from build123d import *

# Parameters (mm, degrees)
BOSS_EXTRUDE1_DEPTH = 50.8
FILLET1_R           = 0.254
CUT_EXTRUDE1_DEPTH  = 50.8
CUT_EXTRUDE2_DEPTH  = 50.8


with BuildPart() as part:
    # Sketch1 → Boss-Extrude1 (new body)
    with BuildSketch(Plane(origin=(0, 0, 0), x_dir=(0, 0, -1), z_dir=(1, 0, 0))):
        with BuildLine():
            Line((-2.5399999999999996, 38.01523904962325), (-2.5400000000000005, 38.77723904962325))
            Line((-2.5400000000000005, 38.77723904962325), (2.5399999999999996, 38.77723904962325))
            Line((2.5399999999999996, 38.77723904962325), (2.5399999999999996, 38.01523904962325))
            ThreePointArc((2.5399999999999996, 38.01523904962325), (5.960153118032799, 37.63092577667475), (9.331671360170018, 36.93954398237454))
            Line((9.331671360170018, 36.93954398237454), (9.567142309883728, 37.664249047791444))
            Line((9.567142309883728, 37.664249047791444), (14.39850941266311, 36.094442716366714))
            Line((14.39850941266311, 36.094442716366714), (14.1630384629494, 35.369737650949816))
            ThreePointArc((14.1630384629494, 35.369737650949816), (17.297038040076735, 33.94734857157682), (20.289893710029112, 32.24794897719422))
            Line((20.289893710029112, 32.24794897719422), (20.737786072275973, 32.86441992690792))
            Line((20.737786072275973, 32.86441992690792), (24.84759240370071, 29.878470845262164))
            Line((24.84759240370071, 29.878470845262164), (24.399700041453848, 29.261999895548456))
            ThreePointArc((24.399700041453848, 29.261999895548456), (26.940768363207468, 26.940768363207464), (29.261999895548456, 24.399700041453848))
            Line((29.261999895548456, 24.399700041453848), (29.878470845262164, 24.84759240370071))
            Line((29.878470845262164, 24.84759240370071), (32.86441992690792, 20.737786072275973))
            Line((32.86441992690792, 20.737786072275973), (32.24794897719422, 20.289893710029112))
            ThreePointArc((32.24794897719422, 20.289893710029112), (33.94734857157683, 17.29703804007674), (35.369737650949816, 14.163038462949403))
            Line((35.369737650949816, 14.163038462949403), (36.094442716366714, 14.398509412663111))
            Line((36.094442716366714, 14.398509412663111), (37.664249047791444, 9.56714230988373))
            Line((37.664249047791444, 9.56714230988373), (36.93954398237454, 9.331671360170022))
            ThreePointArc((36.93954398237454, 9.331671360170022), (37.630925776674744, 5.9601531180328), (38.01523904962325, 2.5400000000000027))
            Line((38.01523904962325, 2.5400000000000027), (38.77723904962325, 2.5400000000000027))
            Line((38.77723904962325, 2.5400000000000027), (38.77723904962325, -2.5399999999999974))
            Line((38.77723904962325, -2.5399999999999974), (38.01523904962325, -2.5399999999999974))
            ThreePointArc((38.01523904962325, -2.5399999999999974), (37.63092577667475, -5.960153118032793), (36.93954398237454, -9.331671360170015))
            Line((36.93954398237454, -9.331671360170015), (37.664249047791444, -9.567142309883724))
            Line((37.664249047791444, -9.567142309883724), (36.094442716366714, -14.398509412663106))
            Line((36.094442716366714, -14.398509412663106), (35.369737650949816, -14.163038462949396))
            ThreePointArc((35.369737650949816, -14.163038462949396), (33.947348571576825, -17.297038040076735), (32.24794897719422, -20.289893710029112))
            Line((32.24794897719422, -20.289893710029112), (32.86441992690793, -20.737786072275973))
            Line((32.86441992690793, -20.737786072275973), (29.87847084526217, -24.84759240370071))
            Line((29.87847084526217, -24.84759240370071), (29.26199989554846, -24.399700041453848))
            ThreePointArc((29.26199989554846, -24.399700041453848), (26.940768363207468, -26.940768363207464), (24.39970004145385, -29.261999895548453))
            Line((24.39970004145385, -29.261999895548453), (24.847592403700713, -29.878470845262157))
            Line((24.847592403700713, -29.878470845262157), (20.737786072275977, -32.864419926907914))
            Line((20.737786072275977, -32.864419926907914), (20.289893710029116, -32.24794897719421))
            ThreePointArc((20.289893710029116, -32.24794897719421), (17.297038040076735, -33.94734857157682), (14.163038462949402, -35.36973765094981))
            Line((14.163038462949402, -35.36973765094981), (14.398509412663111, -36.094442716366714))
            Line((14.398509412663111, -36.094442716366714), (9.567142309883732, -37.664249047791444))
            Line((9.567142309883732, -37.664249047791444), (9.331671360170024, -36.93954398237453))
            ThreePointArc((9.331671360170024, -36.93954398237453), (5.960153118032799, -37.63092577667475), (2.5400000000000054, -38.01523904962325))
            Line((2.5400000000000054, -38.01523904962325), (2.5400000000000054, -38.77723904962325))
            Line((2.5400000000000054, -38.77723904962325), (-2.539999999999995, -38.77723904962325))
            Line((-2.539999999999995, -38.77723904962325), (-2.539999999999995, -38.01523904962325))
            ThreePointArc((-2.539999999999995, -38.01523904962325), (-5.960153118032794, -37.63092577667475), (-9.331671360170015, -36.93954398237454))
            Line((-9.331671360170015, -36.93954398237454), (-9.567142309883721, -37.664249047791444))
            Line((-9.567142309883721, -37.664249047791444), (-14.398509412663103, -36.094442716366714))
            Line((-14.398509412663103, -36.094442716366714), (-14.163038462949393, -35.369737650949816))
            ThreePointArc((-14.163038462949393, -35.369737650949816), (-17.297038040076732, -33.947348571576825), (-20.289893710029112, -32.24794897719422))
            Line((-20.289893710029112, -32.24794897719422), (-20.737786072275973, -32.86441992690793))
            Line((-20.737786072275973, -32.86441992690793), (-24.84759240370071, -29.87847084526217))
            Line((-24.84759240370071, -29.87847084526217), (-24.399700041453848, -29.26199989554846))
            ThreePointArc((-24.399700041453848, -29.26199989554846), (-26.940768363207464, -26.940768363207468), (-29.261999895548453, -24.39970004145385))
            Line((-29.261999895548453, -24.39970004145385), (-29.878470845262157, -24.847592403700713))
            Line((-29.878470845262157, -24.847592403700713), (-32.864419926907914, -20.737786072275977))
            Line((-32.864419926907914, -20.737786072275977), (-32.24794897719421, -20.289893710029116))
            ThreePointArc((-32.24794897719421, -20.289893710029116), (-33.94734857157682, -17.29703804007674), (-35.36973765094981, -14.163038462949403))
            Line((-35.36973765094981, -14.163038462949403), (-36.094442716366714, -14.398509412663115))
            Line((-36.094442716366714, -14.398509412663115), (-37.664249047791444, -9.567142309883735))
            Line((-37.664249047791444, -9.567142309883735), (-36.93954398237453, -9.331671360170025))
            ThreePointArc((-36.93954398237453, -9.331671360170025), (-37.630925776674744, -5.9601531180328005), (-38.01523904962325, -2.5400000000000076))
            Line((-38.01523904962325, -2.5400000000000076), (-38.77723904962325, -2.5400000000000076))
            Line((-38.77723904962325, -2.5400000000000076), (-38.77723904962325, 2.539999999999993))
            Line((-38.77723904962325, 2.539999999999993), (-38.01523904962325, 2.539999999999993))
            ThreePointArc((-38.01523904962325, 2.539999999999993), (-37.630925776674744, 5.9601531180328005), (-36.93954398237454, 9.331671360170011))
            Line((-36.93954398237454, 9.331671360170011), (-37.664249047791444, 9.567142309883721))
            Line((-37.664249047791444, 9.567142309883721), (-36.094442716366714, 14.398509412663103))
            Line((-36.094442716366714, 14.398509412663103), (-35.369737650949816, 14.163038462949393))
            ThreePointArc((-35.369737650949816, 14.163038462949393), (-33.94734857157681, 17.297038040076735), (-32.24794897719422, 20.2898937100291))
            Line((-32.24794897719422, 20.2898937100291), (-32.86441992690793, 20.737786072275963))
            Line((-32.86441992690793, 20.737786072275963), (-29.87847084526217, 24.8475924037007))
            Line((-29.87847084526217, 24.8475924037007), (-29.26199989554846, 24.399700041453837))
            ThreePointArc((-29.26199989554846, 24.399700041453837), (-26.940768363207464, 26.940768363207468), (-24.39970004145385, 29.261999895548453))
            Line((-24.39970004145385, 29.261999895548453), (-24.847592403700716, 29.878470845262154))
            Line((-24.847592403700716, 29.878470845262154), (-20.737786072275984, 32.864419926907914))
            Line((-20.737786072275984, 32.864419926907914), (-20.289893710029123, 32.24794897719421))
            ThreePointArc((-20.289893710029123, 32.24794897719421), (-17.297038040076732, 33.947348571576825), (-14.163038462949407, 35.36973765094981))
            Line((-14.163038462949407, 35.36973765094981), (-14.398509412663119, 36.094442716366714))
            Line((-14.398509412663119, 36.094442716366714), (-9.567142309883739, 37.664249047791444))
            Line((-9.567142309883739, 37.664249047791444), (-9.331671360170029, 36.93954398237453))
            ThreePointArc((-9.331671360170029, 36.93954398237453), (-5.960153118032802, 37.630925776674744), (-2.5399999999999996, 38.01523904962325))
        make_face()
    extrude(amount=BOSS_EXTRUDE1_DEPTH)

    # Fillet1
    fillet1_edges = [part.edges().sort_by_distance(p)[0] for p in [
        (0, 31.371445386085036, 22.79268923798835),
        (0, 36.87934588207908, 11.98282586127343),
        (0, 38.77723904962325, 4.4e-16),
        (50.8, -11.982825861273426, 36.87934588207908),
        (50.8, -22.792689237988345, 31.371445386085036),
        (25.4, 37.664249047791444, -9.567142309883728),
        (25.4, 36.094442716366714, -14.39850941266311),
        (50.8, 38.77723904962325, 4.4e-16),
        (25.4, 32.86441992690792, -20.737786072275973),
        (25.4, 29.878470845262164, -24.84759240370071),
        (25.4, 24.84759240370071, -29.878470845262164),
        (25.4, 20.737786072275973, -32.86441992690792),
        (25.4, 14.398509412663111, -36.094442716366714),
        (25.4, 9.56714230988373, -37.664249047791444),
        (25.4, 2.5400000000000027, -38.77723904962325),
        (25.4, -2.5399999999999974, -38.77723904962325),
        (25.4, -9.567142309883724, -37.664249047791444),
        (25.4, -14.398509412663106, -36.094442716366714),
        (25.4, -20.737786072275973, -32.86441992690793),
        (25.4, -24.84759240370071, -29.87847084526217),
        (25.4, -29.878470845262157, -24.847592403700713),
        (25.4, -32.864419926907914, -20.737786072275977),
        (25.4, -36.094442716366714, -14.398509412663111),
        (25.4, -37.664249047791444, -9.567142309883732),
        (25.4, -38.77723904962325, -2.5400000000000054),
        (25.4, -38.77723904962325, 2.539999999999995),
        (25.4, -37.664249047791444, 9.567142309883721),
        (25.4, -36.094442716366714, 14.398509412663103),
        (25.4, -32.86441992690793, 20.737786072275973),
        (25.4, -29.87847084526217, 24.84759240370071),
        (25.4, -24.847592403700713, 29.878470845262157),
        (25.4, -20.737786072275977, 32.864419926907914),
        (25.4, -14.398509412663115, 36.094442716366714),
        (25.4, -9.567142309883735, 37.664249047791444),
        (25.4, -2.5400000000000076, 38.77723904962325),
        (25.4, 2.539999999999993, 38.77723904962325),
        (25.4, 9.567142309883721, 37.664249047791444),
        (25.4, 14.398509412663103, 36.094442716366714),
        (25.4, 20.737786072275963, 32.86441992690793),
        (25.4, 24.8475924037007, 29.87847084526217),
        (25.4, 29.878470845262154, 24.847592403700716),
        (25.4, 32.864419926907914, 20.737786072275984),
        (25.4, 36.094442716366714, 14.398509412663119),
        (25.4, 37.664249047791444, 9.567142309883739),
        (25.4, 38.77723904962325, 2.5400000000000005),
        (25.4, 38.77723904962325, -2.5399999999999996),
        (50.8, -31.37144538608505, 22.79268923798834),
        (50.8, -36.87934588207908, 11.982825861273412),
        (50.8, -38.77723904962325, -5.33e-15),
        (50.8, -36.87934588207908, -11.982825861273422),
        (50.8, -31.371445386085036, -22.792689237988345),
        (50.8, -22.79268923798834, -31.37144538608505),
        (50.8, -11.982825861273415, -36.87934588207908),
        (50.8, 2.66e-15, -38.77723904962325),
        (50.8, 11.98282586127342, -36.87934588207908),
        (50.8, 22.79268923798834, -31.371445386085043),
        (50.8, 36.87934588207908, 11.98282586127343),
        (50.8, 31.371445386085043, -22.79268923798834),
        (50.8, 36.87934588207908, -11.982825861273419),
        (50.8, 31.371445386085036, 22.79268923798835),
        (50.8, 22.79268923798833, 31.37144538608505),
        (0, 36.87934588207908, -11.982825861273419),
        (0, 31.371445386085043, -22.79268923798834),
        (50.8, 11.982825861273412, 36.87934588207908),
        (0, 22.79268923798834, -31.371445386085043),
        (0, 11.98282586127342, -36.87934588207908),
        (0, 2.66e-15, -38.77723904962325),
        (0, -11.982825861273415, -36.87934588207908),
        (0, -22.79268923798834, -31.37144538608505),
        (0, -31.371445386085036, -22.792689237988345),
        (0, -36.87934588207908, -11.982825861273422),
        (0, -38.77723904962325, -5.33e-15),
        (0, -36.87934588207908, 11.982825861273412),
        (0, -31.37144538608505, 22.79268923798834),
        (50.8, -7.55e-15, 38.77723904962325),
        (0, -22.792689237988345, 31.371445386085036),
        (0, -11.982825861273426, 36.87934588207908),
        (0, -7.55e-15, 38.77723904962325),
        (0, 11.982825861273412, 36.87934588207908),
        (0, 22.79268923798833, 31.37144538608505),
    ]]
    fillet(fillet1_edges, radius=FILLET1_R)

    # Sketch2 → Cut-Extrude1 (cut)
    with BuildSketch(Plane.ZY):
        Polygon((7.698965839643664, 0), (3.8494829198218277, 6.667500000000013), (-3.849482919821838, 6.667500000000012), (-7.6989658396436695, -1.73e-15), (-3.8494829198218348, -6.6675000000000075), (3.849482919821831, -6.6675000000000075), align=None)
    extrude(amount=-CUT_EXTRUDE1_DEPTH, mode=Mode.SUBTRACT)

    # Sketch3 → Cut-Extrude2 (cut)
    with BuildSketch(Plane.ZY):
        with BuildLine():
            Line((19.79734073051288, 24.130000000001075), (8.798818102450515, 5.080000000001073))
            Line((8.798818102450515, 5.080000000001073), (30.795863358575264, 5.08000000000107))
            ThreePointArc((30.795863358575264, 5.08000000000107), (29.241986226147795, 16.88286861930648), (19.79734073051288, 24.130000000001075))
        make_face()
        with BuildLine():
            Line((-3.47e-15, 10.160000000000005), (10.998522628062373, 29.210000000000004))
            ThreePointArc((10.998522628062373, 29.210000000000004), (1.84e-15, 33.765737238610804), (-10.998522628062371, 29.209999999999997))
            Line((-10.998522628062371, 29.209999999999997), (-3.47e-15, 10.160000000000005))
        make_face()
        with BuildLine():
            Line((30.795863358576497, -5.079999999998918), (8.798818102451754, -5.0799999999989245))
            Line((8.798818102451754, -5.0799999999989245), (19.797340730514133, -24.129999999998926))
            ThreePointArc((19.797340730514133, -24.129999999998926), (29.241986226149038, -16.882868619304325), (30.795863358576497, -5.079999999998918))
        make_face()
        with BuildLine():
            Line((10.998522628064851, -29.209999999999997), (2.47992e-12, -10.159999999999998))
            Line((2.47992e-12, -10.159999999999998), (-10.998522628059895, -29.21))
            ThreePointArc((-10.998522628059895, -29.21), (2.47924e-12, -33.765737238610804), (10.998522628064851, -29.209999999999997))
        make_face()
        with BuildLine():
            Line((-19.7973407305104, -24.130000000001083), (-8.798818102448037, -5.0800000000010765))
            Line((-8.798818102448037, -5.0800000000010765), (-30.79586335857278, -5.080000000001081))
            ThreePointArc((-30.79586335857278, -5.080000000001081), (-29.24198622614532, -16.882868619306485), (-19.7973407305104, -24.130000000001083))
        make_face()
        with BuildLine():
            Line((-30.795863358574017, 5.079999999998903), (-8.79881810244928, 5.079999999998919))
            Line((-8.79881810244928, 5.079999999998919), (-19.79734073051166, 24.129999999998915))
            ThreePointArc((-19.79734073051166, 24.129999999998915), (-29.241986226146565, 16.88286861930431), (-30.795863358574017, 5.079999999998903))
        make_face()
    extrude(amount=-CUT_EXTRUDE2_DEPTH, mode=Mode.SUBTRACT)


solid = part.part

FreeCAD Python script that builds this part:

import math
import FreeCAD as App
import Part
import Sketcher

V = App.Vector
Q = App.Units.Quantity


def edges_at(feature, points):
    """Names of the edges that pass closest to the given points."""
    edges = feature.Shape.Edges
    near = lambda p: min(range(len(edges)), key=lambda i: edges[i].distToShape(Part.Vertex(*p))[0])
    return sorted({f"Edge{near(p) + 1}" for p in points})

doc = App.newDocument("Part")
params = doc.addObject("Spreadsheet::Sheet", "Params")
for row, (alias, value) in enumerate([
    ("sketch1_radius", "1.5 in"),
    ("sketch1_width", "0.2 in"),
    ("sketch1_length", "0.2 in"),
    ("sketch1_width2", "0.03 in"),
    ("sketch1_length2", "0.03 in"),
    ("pad1_length", "2 in"),
    ("fillet_radius", "0.01 in"),
    ("pocket1_length", "2 in"),
    ("pocket2_length", "2 in"),
], start=1):
    params.set(f"A{row}", alias)
    params.set(f"B{row}", "=" + value)
    params.setAlias(f"B{row}", alias)

body = doc.addObject("PartDesign::Body", "Body")

sketch1 = doc.addObject("Sketcher::SketchObject", "Sketch")
body.addObject(sketch1)
sketch1.AttachmentSupport = (doc.YZ_Plane, [""])
sketch1.MapMode = "FlatFace"
sketch1.addGeometry([
    Part.LineSegment(V(38.8, 2.5, 0), V(38, 2.5, 0)),
    Part.ArcOfCircle(Part.Circle(V(0, 0, 0), V(0, 0, 1), 38.1), math.radians(3.82), math.radians(14.18)),
    Part.LineSegment(V(36.9, 9.3, 0), V(37.7, 9.6, 0)),
    Part.LineSegment(V(37.7, 9.6, 0), V(36.1, 14.4, 0)),
    Part.LineSegment(V(36.1, 14.4, 0), V(35.4, 14.2, 0)),
    Part.ArcOfCircle(Part.Circle(V(0, 0, 0), V(0, 0, 1), 38.1), math.radians(21.82), math.radians(32.18)),
    Part.LineSegment(V(32.2, 20.3, 0), V(32.9, 20.7, 0)),
    Part.LineSegment(V(32.9, 20.7, 0), V(29.9, 24.8, 0)),
    Part.LineSegment(V(29.9, 24.8, 0), V(29.3, 24.4, 0)),
    Part.ArcOfCircle(Part.Circle(V(0, 0, 0), V(0, 0, 1), 38.1), math.radians(39.82), math.radians(50.18)),
    Part.LineSegment(V(24.4, 29.3, 0), V(24.8, 29.9, 0)),
    Part.LineSegment(V(24.8, 29.9, 0), V(20.7, 32.9, 0)),
    Part.LineSegment(V(20.7, 32.9, 0), V(20.3, 32.2, 0)),
    Part.ArcOfCircle(Part.Circle(V(0, 0, 0), V(0, 0, 1), 38.1), math.radians(57.82), math.radians(68.18)),
    Part.LineSegment(V(14.2, 35.4, 0), V(14.4, 36.1, 0)),
    Part.LineSegment(V(14.4, 36.1, 0), V(9.6, 37.7, 0)),
    Part.LineSegment(V(9.6, 37.7, 0), V(9.3, 36.9, 0)),
    Part.ArcOfCircle(Part.Circle(V(0, 0, 0), V(0, 0, 1), 38.1), math.radians(75.82), math.radians(86.18)),
    Part.LineSegment(V(2.5, 38, 0), V(2.5, 38.8, 0)),
    Part.LineSegment(V(2.5, 38.8, 0), V(-2.5, 38.8, 0)),
    Part.LineSegment(V(-2.5, 38.8, 0), V(-2.5, 38, 0)),
    Part.ArcOfCircle(Part.Circle(V(0, 0, 0), V(0, 0, 1), 38.1), math.radians(93.82), math.radians(104.18)),
    Part.LineSegment(V(-9.3, 36.9, 0), V(-9.6, 37.7, 0)),
    Part.LineSegment(V(-9.6, 37.7, 0), V(-14.4, 36.1, 0)),
    Part.LineSegment(V(-14.4, 36.1, 0), V(-14.2, 35.4, 0)),
    Part.ArcOfCircle(Part.Circle(V(0, 0, 0), V(0, 0, 1), 38.1), math.radians(111.82), math.radians(122.18)),
    Part.LineSegment(V(-20.3, 32.2, 0), V(-20.7, 32.9, 0)),
    Part.LineSegment(V(-20.7, 32.9, 0), V(-24.8, 29.9, 0)),
    Part.LineSegment(V(-24.8, 29.9, 0), V(-24.4, 29.3, 0)),
    Part.ArcOfCircle(Part.Circle(V(0, 0, 0), V(0, 0, 1), 38.1), math.radians(129.82), math.radians(140.18)),
    Part.LineSegment(V(-29.3, 24.4, 0), V(-29.9, 24.8, 0)),
    Part.LineSegment(V(-29.9, 24.8, 0), V(-32.9, 20.7, 0)),
    Part.LineSegment(V(-32.9, 20.7, 0), V(-32.2, 20.3, 0)),
    Part.ArcOfCircle(Part.Circle(V(0, 0, 0), V(0, 0, 1), 38.1), math.radians(147.82), math.radians(158.18)),
    Part.LineSegment(V(-35.4, 14.2, 0), V(-36.1, 14.4, 0)),
    Part.LineSegment(V(-36.1, 14.4, 0), V(-37.7, 9.6, 0)),
    Part.LineSegment(V(-37.7, 9.6, 0), V(-36.9, 9.3, 0)),
    Part.ArcOfCircle(Part.Circle(V(0, 0, 0), V(0, 0, 1), 38.1), math.radians(165.82), math.radians(176.18)),
    Part.LineSegment(V(-38, 2.5, 0), V(-38.8, 2.5, 0)),
    Part.LineSegment(V(-38.8, 2.5, 0), V(-38.8, -2.5, 0)),
    Part.LineSegment(V(-38.8, -2.5, 0), V(-38, -2.5, 0)),
    Part.ArcOfCircle(Part.Circle(V(0, 0, 0), V(0, 0, 1), 38.1), math.radians(-176.18), math.radians(-165.82)),
    Part.LineSegment(V(-36.9, -9.3, 0), V(-37.7, -9.6, 0)),
    Part.LineSegment(V(-37.7, -9.6, 0), V(-36.1, -14.4, 0)),
    Part.LineSegment(V(-36.1, -14.4, 0), V(-35.4, -14.2, 0)),
    Part.ArcOfCircle(Part.Circle(V(0, 0, 0), V(0, 0, 1), 38.1), math.radians(-158.18), math.radians(-147.82)),
    Part.LineSegment(V(-32.2, -20.3, 0), V(-32.9, -20.7, 0)),
    Part.LineSegment(V(-32.9, -20.7, 0), V(-29.9, -24.8, 0)),
    Part.LineSegment(V(-29.9, -24.8, 0), V(-29.3, -24.4, 0)),
    Part.ArcOfCircle(Part.Circle(V(0, 0, 0), V(0, 0, 1), 38.1), math.radians(-140.18), math.radians(-129.82)),
    Part.LineSegment(V(-24.4, -29.3, 0), V(-24.8, -29.9, 0)),
    Part.LineSegment(V(-24.8, -29.9, 0), V(-20.7, -32.9, 0)),
    Part.LineSegment(V(-20.7, -32.9, 0), V(-20.3, -32.2, 0)),
    Part.ArcOfCircle(Part.Circle(V(0, 0, 0), V(0, 0, 1), 38.1), math.radians(-122.18), math.radians(-111.82)),
    Part.LineSegment(V(-14.2, -35.4, 0), V(-14.4, -36.1, 0)),
    Part.LineSegment(V(-14.4, -36.1, 0), V(-9.6, -37.7, 0)),
    Part.LineSegment(V(-9.6, -37.7, 0), V(-9.3, -36.9, 0)),
    Part.ArcOfCircle(Part.Circle(V(0, 0, 0), V(0, 0, 1), 38.1), math.radians(-104.18), math.radians(-93.82)),
    Part.LineSegment(V(-2.5, -38, 0), V(-2.5, -38.8, 0)),
    Part.LineSegment(V(-2.5, -38.8, 0), V(2.5, -38.8, 0)),
    Part.LineSegment(V(2.5, -38.8, 0), V(2.5, -38, 0)),
    Part.ArcOfCircle(Part.Circle(V(0, 0, 0), V(0, 0, 1), 38.1), math.radians(-86.18), math.radians(-75.82)),
    Part.LineSegment(V(9.3, -36.9, 0), V(9.6, -37.7, 0)),
    Part.LineSegment(V(9.6, -37.7, 0), V(14.4, -36.1, 0)),
    Part.LineSegment(V(14.4, -36.1, 0), V(14.2, -35.4, 0)),
    Part.ArcOfCircle(Part.Circle(V(0, 0, 0), V(0, 0, 1), 38.1), math.radians(-68.18), math.radians(-57.82)),
    Part.LineSegment(V(20.3, -32.2, 0), V(20.7, -32.9, 0)),
    Part.LineSegment(V(20.7, -32.9, 0), V(24.8, -29.9, 0)),
    Part.LineSegment(V(24.8, -29.9, 0), V(24.4, -29.3, 0)),
    Part.ArcOfCircle(Part.Circle(V(0, 0, 0), V(0, 0, 1), 38.1), math.radians(-50.18), math.radians(-39.82)),
    Part.LineSegment(V(29.3, -24.4, 0), V(29.9, -24.8, 0)),
    Part.LineSegment(V(29.9, -24.8, 0), V(32.9, -20.7, 0)),
    Part.LineSegment(V(32.9, -20.7, 0), V(32.2, -20.3, 0)),
    Part.ArcOfCircle(Part.Circle(V(0, 0, 0), V(0, 0, 1), 38.1), math.radians(-32.18), math.radians(-21.82)),
    Part.LineSegment(V(35.4, -14.2, 0), V(36.1, -14.4, 0)),
    Part.LineSegment(V(36.1, -14.4, 0), V(37.7, -9.6, 0)),
    Part.LineSegment(V(37.7, -9.6, 0), V(36.9, -9.3, 0)),
    Part.ArcOfCircle(Part.Circle(V(0, 0, 0), V(0, 0, 1), 38.1), math.radians(-14.18), math.radians(-3.82)),
    Part.LineSegment(V(38, -2.5, 0), V(38.8, -2.5, 0)),
    Part.LineSegment(V(38.8, -2.5, 0), V(38.8, 2.5, 0)),
], False)
sketch1.addConstraint([
    Sketcher.Constraint("Coincident", 0, 2, 1, 1),
    Sketcher.Constraint("Coincident", 1, 2, 2, 1),
    Sketcher.Constraint("Coincident", 2, 2, 3, 1),
    Sketcher.Constraint("Coincident", 3, 2, 4, 1),
    Sketcher.Constraint("Coincident", 4, 2, 5, 1),
    Sketcher.Constraint("Coincident", 5, 2, 6, 1),
    Sketcher.Constraint("Coincident", 6, 2, 7, 1),
    Sketcher.Constraint("Coincident", 7, 2, 8, 1),
    Sketcher.Constraint("Coincident", 8, 2, 9, 1),
    Sketcher.Constraint("Coincident", 9, 2, 10, 1),
    Sketcher.Constraint("Coincident", 10, 2, 11, 1),
    Sketcher.Constraint("Coincident", 11, 2, 12, 1),
    Sketcher.Constraint("Coincident", 12, 2, 13, 1),
    Sketcher.Constraint("Coincident", 13, 2, 14, 1),
    Sketcher.Constraint("Coincident", 14, 2, 15, 1),
    Sketcher.Constraint("Coincident", 15, 2, 16, 1),
    Sketcher.Constraint("Coincident", 16, 2, 17, 1),
    Sketcher.Constraint("Coincident", 17, 2, 18, 1),
    Sketcher.Constraint("Coincident", 18, 2, 19, 1),
    Sketcher.Constraint("Coincident", 19, 2, 20, 1),
    Sketcher.Constraint("Coincident", 20, 2, 21, 1),
    Sketcher.Constraint("Coincident", 21, 2, 22, 1),
    Sketcher.Constraint("Coincident", 22, 2, 23, 1),
    Sketcher.Constraint("Coincident", 23, 2, 24, 1),
    Sketcher.Constraint("Coincident", 24, 2, 25, 1),
    Sketcher.Constraint("Coincident", 25, 2, 26, 1),
    Sketcher.Constraint("Coincident", 26, 2, 27, 1),
    Sketcher.Constraint("Coincident", 27, 2, 28, 1),
    Sketcher.Constraint("Coincident", 28, 2, 29, 1),
    Sketcher.Constraint("Coincident", 29, 2, 30, 1),
    Sketcher.Constraint("Coincident", 30, 2, 31, 1),
    Sketcher.Constraint("Coincident", 31, 2, 32, 1),
    Sketcher.Constraint("Coincident", 32, 2, 33, 1),
    Sketcher.Constraint("Coincident", 33, 2, 34, 1),
    Sketcher.Constraint("Coincident", 34, 2, 35, 1),
    Sketcher.Constraint("Coincident", 35, 2, 36, 1),
    Sketcher.Constraint("Coincident", 36, 2, 37, 1),
    Sketcher.Constraint("Coincident", 37, 2, 38, 1),
    Sketcher.Constraint("Coincident", 38, 2, 39, 1),
    Sketcher.Constraint("Coincident", 39, 2, 40, 1),
    Sketcher.Constraint("Coincident", 40, 2, 41, 1),
    Sketcher.Constraint("Coincident", 41, 2, 42, 1),
    Sketcher.Constraint("Coincident", 42, 2, 43, 1),
    Sketcher.Constraint("Coincident", 43, 2, 44, 1),
    Sketcher.Constraint("Coincident", 44, 2, 45, 1),
    Sketcher.Constraint("Coincident", 45, 2, 46, 1),
    Sketcher.Constraint("Coincident", 46, 2, 47, 1),
    Sketcher.Constraint("Coincident", 47, 2, 48, 1),
    Sketcher.Constraint("Coincident", 48, 2, 49, 1),
    Sketcher.Constraint("Coincident", 49, 2, 50, 1),
    Sketcher.Constraint("Coincident", 50, 2, 51, 1),
    Sketcher.Constraint("Coincident", 51, 2, 52, 1),
    Sketcher.Constraint("Coincident", 52, 2, 53, 1),
    Sketcher.Constraint("Coincident", 53, 2, 54, 1),
    Sketcher.Constraint("Coincident", 54, 2, 55, 1),
    Sketcher.Constraint("Coincident", 55, 2, 56, 1),
    Sketcher.Constraint("Coincident", 56, 2, 57, 1),
    Sketcher.Constraint("Coincident", 57, 2, 58, 1),
    Sketcher.Constraint("Coincident", 58, 2, 59, 1),
    Sketcher.Constraint("Coincident", 59, 2, 60, 1),
    Sketcher.Constraint("Coincident", 60, 2, 61, 1),
    Sketcher.Constraint("Coincident", 61, 2, 62, 1),
    Sketcher.Constraint("Coincident", 62, 2, 63, 1),
    Sketcher.Constraint("Coincident", 63, 2, 64, 1),
    Sketcher.Constraint("Coincident", 64, 2, 65, 1),
    Sketcher.Constraint("Coincident", 65, 2, 66, 1),
    Sketcher.Constraint("Coincident", 66, 2, 67, 1),
    Sketcher.Constraint("Coincident", 67, 2, 68, 1),
    Sketcher.Constraint("Coincident", 68, 2, 69, 1),
    Sketcher.Constraint("Coincident", 69, 2, 70, 1),
    Sketcher.Constraint("Coincident", 70, 2, 71, 1),
    Sketcher.Constraint("Coincident", 71, 2, 72, 1),
    Sketcher.Constraint("Coincident", 72, 2, 73, 1),
    Sketcher.Constraint("Coincident", 73, 2, 74, 1),
    Sketcher.Constraint("Coincident", 74, 2, 75, 1),
    Sketcher.Constraint("Coincident", 75, 2, 76, 1),
    Sketcher.Constraint("Coincident", 76, 2, 77, 1),
    Sketcher.Constraint("Coincident", 77, 2, 78, 1),
    Sketcher.Constraint("Coincident", 78, 2, 79, 1),
    Sketcher.Constraint("Coincident", 79, 2, 0, 1),
    Sketcher.Constraint("Horizontal", 0),
    Sketcher.Constraint("Vertical", 18),
    Sketcher.Constraint("Horizontal", 19),
    Sketcher.Constraint("Vertical", 20),
    Sketcher.Constraint("Horizontal", 38),
    Sketcher.Constraint("Vertical", 39),
    Sketcher.Constraint("Horizontal", 40),
    Sketcher.Constraint("Vertical", 58),
    Sketcher.Constraint("Horizontal", 59),
    Sketcher.Constraint("Vertical", 60),
    Sketcher.Constraint("Horizontal", 78),
    Sketcher.Constraint("Vertical", 79),
    Sketcher.Constraint("Coincident", 1, 3, -1, 1),
    Sketcher.Constraint("Coincident", 5, 3, -1, 1),
    Sketcher.Constraint("Coincident", 9, 3, -1, 1),
    Sketcher.Constraint("Coincident", 13, 3, -1, 1),
    Sketcher.Constraint("Coincident", 17, 3, -1, 1),
    Sketcher.Constraint("Coincident", 21, 3, -1, 1),
    Sketcher.Constraint("Coincident", 25, 3, -1, 1),
    Sketcher.Constraint("Coincident", 29, 3, -1, 1),
    Sketcher.Constraint("Coincident", 33, 3, -1, 1),
    Sketcher.Constraint("Coincident", 37, 3, -1, 1),
    Sketcher.Constraint("Coincident", 41, 3, -1, 1),
    Sketcher.Constraint("Coincident", 45, 3, -1, 1),
    Sketcher.Constraint("Coincident", 49, 3, -1, 1),
    Sketcher.Constraint("Coincident", 53, 3, -1, 1),
    Sketcher.Constraint("Coincident", 57, 3, -1, 1),
    Sketcher.Constraint("Coincident", 61, 3, -1, 1),
    Sketcher.Constraint("Coincident", 65, 3, -1, 1),
    Sketcher.Constraint("Coincident", 69, 3, -1, 1),
    Sketcher.Constraint("Coincident", 73, 3, -1, 1),
    Sketcher.Constraint("Coincident", 77, 3, -1, 1),
    Sketcher.Constraint("Equal", 1, 5),
    Sketcher.Constraint("Equal", 5, 9),
    Sketcher.Constraint("Equal", 9, 13),
    Sketcher.Constraint("Equal", 13, 17),
    Sketcher.Constraint("Equal", 17, 21),
    Sketcher.Constraint("Equal", 21, 25),
    Sketcher.Constraint("Equal", 25, 29),
    Sketcher.Constraint("Equal", 29, 33),
    Sketcher.Constraint("Equal", 33, 37),
    Sketcher.Constraint("Equal", 37, 41),
    Sketcher.Constraint("Equal", 41, 45),
    Sketcher.Constraint("Equal", 45, 49),
    Sketcher.Constraint("Equal", 49, 53),
    Sketcher.Constraint("Equal", 53, 57),
    Sketcher.Constraint("Equal", 57, 61),
    Sketcher.Constraint("Equal", 61, 65),
    Sketcher.Constraint("Equal", 65, 69),
    Sketcher.Constraint("Equal", 69, 73),
    Sketcher.Constraint("Equal", 73, 77),
    Sketcher.Constraint("Symmetric", 2, 2, 42, 2, -1, 1),
    Sketcher.Constraint("Symmetric", 3, 2, 43, 2, -1, 1),
    Sketcher.Constraint("Symmetric", 6, 2, 46, 2, -1, 1),
    Sketcher.Constraint("Symmetric", 7, 2, 47, 2, -1, 1),
    Sketcher.Constraint("Symmetric", 10, 2, 50, 2, -1, 1),
    Sketcher.Constraint("Symmetric", 11, 2, 51, 2, -1, 1),
    Sketcher.Constraint("Symmetric", 14, 2, 54, 2, -1, 1),
    Sketcher.Constraint("Symmetric", 15, 2, 55, 2, -1, 1),
    Sketcher.Constraint("Symmetric", 18, 2, 58, 2, -1, 1),
    Sketcher.Constraint("Symmetric", 22, 2, 62, 2, -1, 1),
    Sketcher.Constraint("Symmetric", 23, 2, 63, 2, -1, 1),
    Sketcher.Constraint("Symmetric", 26, 2, 66, 2, -1, 1),
    Sketcher.Constraint("Symmetric", 27, 2, 67, 2, -1, 1),
    Sketcher.Constraint("Symmetric", 30, 2, 70, 2, -1, 1),
    Sketcher.Constraint("Symmetric", 31, 2, 71, 2, -1, 1),
    Sketcher.Constraint("Symmetric", 34, 2, 74, 2, -1, 1),
    Sketcher.Constraint("Symmetric", 35, 2, 75, 2, -1, 1),
    Sketcher.Constraint("Symmetric", 38, 2, 78, 2, -1, 1),
    Sketcher.Constraint("Symmetric", 15, 2, 22, 2, -2),
    Sketcher.Constraint("Symmetric", 14, 2, 23, 2, -2),
    Sketcher.Constraint("Symmetric", 11, 2, 26, 2, -2),
    Sketcher.Constraint("Symmetric", 10, 2, 27, 2, -2),
    Sketcher.Constraint("Symmetric", 7, 2, 30, 2, -2),
    Sketcher.Constraint("Symmetric", 6, 2, 31, 2, -2),
    Sketcher.Constraint("Symmetric", 3, 2, 34, 2, -2),
    Sketcher.Constraint("Symmetric", 2, 2, 35, 2, -2),
    Sketcher.Constraint("Perpendicular", 2, 3),
    Sketcher.Constraint("Perpendicular", 3, 4),
    Sketcher.Constraint("Perpendicular", 6, 7),
    Sketcher.Constraint("Perpendicular", 7, 8),
    Sketcher.Constraint("Perpendicular", 10, 11),
    Sketcher.Constraint("Perpendicular", 11, 12),
    Sketcher.Constraint("Perpendicular", 14, 15),
    Sketcher.Constraint("Perpendicular", 15, 16),
    Sketcher.Constraint("Perpendicular", 4, 22),
    Sketcher.Constraint("Perpendicular", 22, 23),
    Sketcher.Constraint("Perpendicular", 23, 24),
    Sketcher.Constraint("Perpendicular", 8, 26),
    Sketcher.Constraint("Perpendicular", 26, 27),
    Sketcher.Constraint("Perpendicular", 27, 28),
    Sketcher.Constraint("Perpendicular", 12, 30),
    Sketcher.Constraint("Perpendicular", 31, 32),
    Sketcher.Constraint("Perpendicular", 16, 34),
    Sketcher.Constraint("Perpendicular", 35, 36),
    Sketcher.Constraint("Perpendicular", 24, 42),
    Sketcher.Constraint("Perpendicular", 43, 44),
    Sketcher.Constraint("Perpendicular", 28, 46),
    Sketcher.Constraint("Perpendicular", 47, 48),
    Sketcher.Constraint("Perpendicular", 32, 50),
    Sketcher.Constraint("Perpendicular", 51, 52),
    Sketcher.Constraint("Perpendicular", 36, 54),
    Sketcher.Constraint("Perpendicular", 55, 56),
    Sketcher.Constraint("Perpendicular", 44, 62),
    Sketcher.Constraint("Perpendicular", 63, 64),
    Sketcher.Constraint("Perpendicular", 48, 66),
    Sketcher.Constraint("Perpendicular", 67, 68),
    Sketcher.Constraint("Perpendicular", 52, 70),
    Sketcher.Constraint("Perpendicular", 71, 72),
    Sketcher.Constraint("Perpendicular", 56, 74),
    Sketcher.Constraint("Perpendicular", 75, 76),
    Sketcher.Constraint("Horizontal", 17, 2, 20, 2),
    Sketcher.Constraint("Horizontal", 0, 2, 37, 2),
    Sketcher.Constraint("Horizontal", 57, 2, 60, 2),
    Sketcher.Constraint("Horizontal", 40, 2, 77, 2),
    Sketcher.Constraint("Equal", 78, 18),
    Sketcher.Constraint("Equal", 59, 39),
    Sketcher.Constraint("Equal", 2, 4),
    Sketcher.Constraint("Equal", 4, 6),
    Sketcher.Constraint("Equal", 3, 7),
    Sketcher.Constraint("Equal", 6, 8),
    Sketcher.Constraint("Equal", 8, 10),
    Sketcher.Constraint("Equal", 7, 11),
    Sketcher.Constraint("Equal", 10, 12),
    Sketcher.Constraint("Equal", 12, 14),
    Sketcher.Constraint("Equal", 11, 15),
    Sketcher.Constraint("Equal", 14, 16),
    Sketcher.Constraint("Radius", 1, Q("1.5 in")),
    Sketcher.Constraint("DistanceX", 19, 2, 19, 1, Q("0.2 in")),
    Sketcher.Constraint("Angle", 2, Q("18 deg")),
    Sketcher.Constraint("Angle", 6, Q("36 deg")),
    Sketcher.Constraint("Distance", 3, Q("0.2 in")),
    Sketcher.Constraint("DistanceX", 0, 2, 0, 1, Q("0.03 in")),
    Sketcher.Constraint("Distance", 2, Q("0.03 in")),
])
sketch1.setExpression("Constraints[207]", "Params.sketch1_radius")
sketch1.setExpression("Constraints[208]", "Params.sketch1_width")
sketch1.setExpression("Constraints[211]", "Params.sketch1_length")
sketch1.setExpression("Constraints[212]", "Params.sketch1_width2")
sketch1.setExpression("Constraints[213]", "Params.sketch1_length2")
pad1 = doc.addObject("PartDesign::Pad", "Pad")
body.addObject(pad1)
pad1.Profile = sketch1
pad1.setExpression("Length", "Params.pad1_length")
doc.recompute()

fillet = doc.addObject("PartDesign::Fillet", "Fillet")
body.addObject(fillet)
fillet.Base = (pad1, edges_at(pad1, [
    (0, 31.371, 22.793),
    (0, 36.879, 11.983),
    (0, 38.777, 0),
    (50.8, -11.983, 36.879),
    (50.8, -22.793, 31.371),
    (25.4, 37.664, -9.567),
    (25.4, 36.094, -14.399),
    (50.8, 38.777, 0),
    (25.4, 32.864, -20.738),
    (25.4, 29.878, -24.848),
    (25.4, 24.848, -29.878),
    (25.4, 20.738, -32.864),
    (25.4, 14.399, -36.094),
    (25.4, 9.567, -37.664),
    (25.4, 2.54, -38.777),
    (25.4, -2.54, -38.777),
    (25.4, -9.567, -37.664),
    (25.4, -14.399, -36.094),
    (25.4, -20.738, -32.864),
    (25.4, -24.848, -29.878),
    (25.4, -29.878, -24.848),
    (25.4, -32.864, -20.738),
    (25.4, -36.094, -14.399),
    (25.4, -37.664, -9.567),
    (25.4, -38.777, -2.54),
    (25.4, -38.777, 2.54),
    (25.4, -37.664, 9.567),
    (25.4, -36.094, 14.399),
    (25.4, -32.864, 20.738),
    (25.4, -29.878, 24.848),
    (25.4, -24.848, 29.878),
    (25.4, -20.738, 32.864),
    (25.4, -14.399, 36.094),
    (25.4, -9.567, 37.664),
    (25.4, -2.54, 38.777),
    (25.4, 2.54, 38.777),
    (25.4, 9.567, 37.664),
    (25.4, 14.399, 36.094),
    (25.4, 20.738, 32.864),
    (25.4, 24.848, 29.878),
    (25.4, 29.878, 24.848),
    (25.4, 32.864, 20.738),
    (25.4, 36.094, 14.399),
    (25.4, 37.664, 9.567),
    (25.4, 38.777, 2.54),
    (25.4, 38.777, -2.54),
    (50.8, -31.371, 22.793),
    (50.8, -36.879, 11.983),
    (50.8, -38.777, 0),
    (50.8, -36.879, -11.983),
    (50.8, -31.371, -22.793),
    (50.8, -22.793, -31.371),
    (50.8, -11.983, -36.879),
    (50.8, 0, -38.777),
    (50.8, 11.983, -36.879),
    (50.8, 22.793, -31.371),
    (50.8, 36.879, 11.983),
    (50.8, 31.371, -22.793),
    (50.8, 36.879, -11.983),
    (50.8, 31.371, 22.793),
    (50.8, 22.793, 31.371),
    (0, 36.879, -11.983),
    (0, 31.371, -22.793),
    (50.8, 11.983, 36.879),
    (0, 22.793, -31.371),
    (0, 11.983, -36.879),
    (0, 0, -38.777),
    (0, -11.983, -36.879),
    (0, -22.793, -31.371),
    (0, -31.371, -22.793),
    (0, -36.879, -11.983),
    (0, -38.777, 0),
    (0, -36.879, 11.983),
    (0, -31.371, 22.793),
    (50.8, 0, 38.777),
    (0, -22.793, 31.371),
    (0, -11.983, 36.879),
    (0, 0, 38.777),
    (0, 11.983, 36.879),
    (0, 22.793, 31.371),
]))
fillet.setExpression("Radius", "Params.fillet_radius")

sketch2 = doc.addObject("Sketcher::SketchObject", "Sketch001")
body.addObject(sketch2)
sketch2.AttachmentSupport = (doc.YZ_Plane, [""])
sketch2.MapMode = "FlatFace"
sketch2.addGeometry([
    Part.LineSegment(V(0, 8, 0), V(7, 4, 0)),
    Part.LineSegment(V(7, 4, 0), V(7, -4, 0)),
    Part.LineSegment(V(7, -4, 0), V(0, -8, 0)),
    Part.LineSegment(V(0, -8, 0), V(-7, -4, 0)),
    Part.LineSegment(V(-7, -4, 0), V(-7, 4, 0)),
    Part.LineSegment(V(-7, 4, 0), V(0, 8, 0)),
], False)
sketch2.addConstraint([
    Sketcher.Constraint("Coincident", 0, 2, 1, 1),
    Sketcher.Constraint("Coincident", 1, 2, 2, 1),
    Sketcher.Constraint("Coincident", 2, 2, 3, 1),
    Sketcher.Constraint("Coincident", 3, 2, 4, 1),
    Sketcher.Constraint("Coincident", 4, 2, 5, 1),
    Sketcher.Constraint("Coincident", 5, 2, 0, 1),
    Sketcher.Constraint("Vertical", 1),
    Sketcher.Constraint("Vertical", 4),
    Sketcher.Constraint("Symmetric", 0, 2, 3, 2, -1, 1),
    Sketcher.Constraint("Symmetric", 2, 2, 5, 2, -1, 1),
    Sketcher.Constraint("PointOnObject", 2, 2, -2),
    Sketcher.Constraint("Parallel", 2, 5),
    Sketcher.Constraint("Horizontal", 1, 2, 3, 2),
    Sketcher.Constraint("Angle", 0, Q("-30 deg")),
    Sketcher.Constraint("DistanceX", 3, 2, 1, 2, Q("0.525 in")),
    Sketcher.Constraint("DistanceY", 1, 2, 1, 1, 7.698966),
])
pocket1 = doc.addObject("PartDesign::Pocket", "Pocket")
body.addObject(pocket1)
pocket1.Profile = sketch2
pocket1.setExpression("Length", "Params.pocket1_length")
pocket1.Reversed = True

sketch3 = doc.addObject("Sketcher::SketchObject", "Sketch002")
body.addObject(sketch3)
sketch3.AttachmentSupport = (doc.YZ_Plane, [""])
sketch3.MapMode = "FlatFace"
sketch3.addGeometry([
    Part.LineSegment(V(24, 20, 0), V(5, 9, 0)),
    Part.LineSegment(V(5, 9, 0), V(5, 31, 0)),
    Part.ArcOfCircle(Part.Circle(V(9, 16, 0), V(0, 0, 1), 16), math.radians(15), math.radians(105)),
    Part.LineSegment(V(10, 0, 0), V(29, 11, 0)),
    Part.ArcOfCircle(Part.Circle(V(18, 0, 0), V(0, 0, 1), 16), math.radians(-45), math.radians(45)),
    Part.LineSegment(V(29, -11, 0), V(10, 0, 0)),
    Part.LineSegment(V(-5, 31, 0), V(-5, 9, 0)),
    Part.LineSegment(V(-5, 9, 0), V(-24, 20, 0)),
    Part.ArcOfCircle(Part.Circle(V(-9, 16, 0), V(0, 0, 1), 16), math.radians(75), math.radians(165)),
    Part.LineSegment(V(-29, 11, 0), V(-10, 0, 0)),
    Part.LineSegment(V(-10, 0, 0), V(-29, -11, 0)),
    Part.ArcOfCircle(Part.Circle(V(-18, 0, 0), V(0, 0, 1), 16), math.radians(135), math.radians(225)),
    Part.LineSegment(V(-24, -20, 0), V(-5, -9, 0)),
    Part.LineSegment(V(-5, -9, 0), V(-5, -31, 0)),
    Part.ArcOfCircle(Part.Circle(V(-9, -16, 0), V(0, 0, 1), 16), math.radians(-165), math.radians(-75)),
    Part.LineSegment(V(5, -31, 0), V(5, -9, 0)),
    Part.LineSegment(V(5, -9, 0), V(24, -20, 0)),
    Part.ArcOfCircle(Part.Circle(V(9, -16, 0), V(0, 0, 1), 16), math.radians(-105), math.radians(-15)),
], False)
sketch3.addConstraint([
    Sketcher.Constraint("Coincident", 0, 2, 1, 1),
    Sketcher.Constraint("Coincident", 1, 2, 2, 2),
    Sketcher.Constraint("Coincident", 2, 1, 0, 1),
    Sketcher.Constraint("Coincident", 3, 2, 4, 2),
    Sketcher.Constraint("Coincident", 4, 1, 5, 1),
    Sketcher.Constraint("Coincident", 5, 2, 3, 1),
    Sketcher.Constraint("Coincident", 6, 2, 7, 1),
    Sketcher.Constraint("Coincident", 7, 2, 8, 2),
    Sketcher.Constraint("Coincident", 8, 1, 6, 1),
    Sketcher.Constraint("Coincident", 9, 2, 10, 1),
    Sketcher.Constraint("Coincident", 10, 2, 11, 2),
    Sketcher.Constraint("Coincident", 11, 1, 9, 1),
    Sketcher.Constraint("Coincident", 12, 2, 13, 1),
    Sketcher.Constraint("Coincident", 13, 2, 14, 2),
    Sketcher.Constraint("Coincident", 14, 1, 12, 1),
    Sketcher.Constraint("Coincident", 15, 2, 16, 1),
    Sketcher.Constraint("Coincident", 16, 2, 17, 2),
    Sketcher.Constraint("Coincident", 17, 1, 15, 1),
    Sketcher.Constraint("Vertical", 1),
    Sketcher.Constraint("Vertical", 6),
    Sketcher.Constraint("Vertical", 13),
    Sketcher.Constraint("Vertical", 15),
    Sketcher.Constraint("Equal", 2, 4),
    Sketcher.Constraint("Equal", 4, 8),
    Sketcher.Constraint("Equal", 8, 11),
    Sketcher.Constraint("Equal", 11, 14),
    Sketcher.Constraint("Equal", 14, 17),
    Sketcher.Constraint("Symmetric", 4, 3, 11, 3, -1, 1),
    Sketcher.Constraint("Symmetric", 2, 3, 14, 3, -1, 1),
    Sketcher.Constraint("Symmetric", 8, 3, 17, 3, -1, 1),
    Sketcher.Constraint("Symmetric", 5, 2, 9, 2, -1, 1),
    Sketcher.Constraint("Symmetric", 0, 2, 12, 2, -1, 1),
    Sketcher.Constraint("Symmetric", 6, 2, 15, 2, -1, 1),
    Sketcher.Constraint("Symmetric", 2, 3, 8, 3, -2),
    Sketcher.Constraint("Symmetric", 0, 2, 6, 2, -2),
    Sketcher.Constraint("Symmetric", 4, 1, 10, 2, -2),
    Sketcher.Constraint("PointOnObject", 5, 2, -1),
    Sketcher.Constraint("Parallel", 0, 3),
    Sketcher.Constraint("Parallel", 5, 7),
    Sketcher.Constraint("Parallel", 7, 9),
    Sketcher.Constraint("Parallel", 3, 10),
    Sketcher.Constraint("Parallel", 10, 12),
    Sketcher.Constraint("Parallel", 9, 16),
    Sketcher.Constraint("Equal", 0, 3),
    Sketcher.Constraint("Angle", 0, Q("-150 deg")),
    Sketcher.Constraint("DistanceX", -1, 1, 0, 2, Q("0.2 in")),
    Sketcher.Constraint("DistanceX", -1, 1, 5, 2, Q("0.4 in")),
    Sketcher.Constraint("DistanceX", -1, 1, 2, 1, Q("0.95 in")),
    Sketcher.Constraint("Radius", 2, 15.55426),
    Sketcher.Constraint("DistanceY", 1, 1, 1, 2, 21.997045),
    Sketcher.Constraint("DistanceY", -1, 1, 0, 2, 8.798818),
])
pocket2 = doc.addObject("PartDesign::Pocket", "Pocket001")
body.addObject(pocket2)
pocket2.Profile = sketch3
pocket2.setExpression("Length", "Params.pocket2_length")
pocket2.Reversed = True

doc.recompute()
